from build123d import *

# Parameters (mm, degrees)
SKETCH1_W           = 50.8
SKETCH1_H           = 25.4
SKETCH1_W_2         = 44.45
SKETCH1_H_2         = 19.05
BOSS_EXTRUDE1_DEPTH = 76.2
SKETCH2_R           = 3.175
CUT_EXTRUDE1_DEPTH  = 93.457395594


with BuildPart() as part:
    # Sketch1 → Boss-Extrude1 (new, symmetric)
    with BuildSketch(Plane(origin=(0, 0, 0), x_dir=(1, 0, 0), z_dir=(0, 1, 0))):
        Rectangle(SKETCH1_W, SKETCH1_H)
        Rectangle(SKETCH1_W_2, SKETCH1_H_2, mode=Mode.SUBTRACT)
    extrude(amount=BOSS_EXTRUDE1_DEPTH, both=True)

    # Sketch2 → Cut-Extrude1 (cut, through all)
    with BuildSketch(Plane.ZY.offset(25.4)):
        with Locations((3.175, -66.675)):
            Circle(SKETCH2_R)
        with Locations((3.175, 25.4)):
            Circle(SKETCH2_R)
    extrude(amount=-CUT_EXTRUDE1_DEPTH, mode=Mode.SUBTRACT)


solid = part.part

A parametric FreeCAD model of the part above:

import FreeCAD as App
import Part
import Sketcher
Q = App.Units.Quantity


def add_polygon(sketch, points):
    """Adds a closed chain of lines whose ends are joined by coincident constraints."""
    first, n = sketch.GeometryCount, len(points)
    for a, b in zip(points, points[1:] + points[:1]):
        sketch.addGeometry(Part.LineSegment(App.Vector(*a, 0), App.Vector(*b, 0)), False)
    for i in range(n):
        sketch.addConstraint(Sketcher.Constraint("Coincident", first + i, 2, first + (i + 1) % n, 1))

doc = App.newDocument("Part")
body = doc.addObject("PartDesign::Body", "Body")

# Sketch on XZ plane
sketch1 = doc.addObject("Sketcher::SketchObject", "Sketch")
body.addObject(sketch1)
sketch1.AttachmentSupport = (doc.XZ_Plane, [""])
sketch1.MapMode = "FlatFace"
add_polygon(sketch1, [(-25.4, -12.7), (-25.4, 12.7), (25.4, 12.7), (25.4, -12.7)])  # lines 0-3
add_polygon(sketch1, [(22.225, 9.525), (-22.225, 9.525), (-22.225, -9.525), (22.225, -9.525)])  # lines 4-7
sketch1.addConstraint([
    Sketcher.Constraint("Vertical", 0),
    Sketcher.Constraint("Horizontal", 1),
    Sketcher.Constraint("Vertical", 2),
    Sketcher.Constraint("Horizontal", 3),
    Sketcher.Constraint("Horizontal", 4),
    Sketcher.Constraint("Vertical", 5),
    Sketcher.Constraint("Horizontal", 6),
    Sketcher.Constraint("Vertical", 7),
    Sketcher.Constraint("Symmetric", 0, 2, 2, 2, -1, 1),
    Sketcher.Constraint("Symmetric", 4, 2, 6, 2, -1, 1),
    Sketcher.Constraint("DistanceX", 1, 1, 1, 2, Q("2 in")),
    Sketcher.Constraint("DistanceY", 0, 1, 0, 2, Q("1 in")),
    Sketcher.Constraint("DistanceX", 4, 2, 4, 1, Q("1.75 in")),
    Sketcher.Constraint("DistanceY", 5, 2, 5, 1, Q("0.75 in")),
])
pad1 = doc.addObject("PartDesign::Pad", "Pad")
body.addObject(pad1)
pad1.Profile = sketch1
pad1.Length = Q("6 in")
pad1.Midplane = True

# Sketch on YZ plane
sketch2 = doc.addObject("Sketcher::SketchObject", "Sketch001")
body.addObject(sketch2)
sketch2.AttachmentSupport = (doc.YZ_Plane, [""])
sketch2.MapMode = "FlatFace"
sketch2.AttachmentOffset = App.Placement(App.Vector(0, 0, -1 * 25.4), App.Rotation())
sketch2.addGeometry([
    Part.Circle(App.Vector(-66.675, 3.175, 0), App.Vector(0, 0, 1), 3.175),
    Part.Circle(App.Vector(25.4, 3.175, 0), App.Vector(0, 0, 1), 3.175),
], False)
sketch2.addConstraint([
    Sketcher.Constraint("Equal", 0, 1),
    Sketcher.Constraint("Horizontal", 0, 3, 1, 3),
    Sketcher.Constraint("Diameter", 0, Q("0.25 in")),
    Sketcher.Constraint("DistanceX", -1, 1, 1, 3, Q("1 in")),
    Sketcher.Constraint("DistanceX", 0, 3, -1, 1, Q("2.625 in")),
    Sketcher.Constraint("DistanceY", -1, 1, 0, 3, Q("0.125 in")),
])
pocket1 = doc.addObject("PartDesign::Pocket", "Pocket")
body.addObject(pocket1)
pocket1.Profile = sketch2
pocket1.Type = "ThroughAll"
pocket1.Reversed = True

doc.recompute()
